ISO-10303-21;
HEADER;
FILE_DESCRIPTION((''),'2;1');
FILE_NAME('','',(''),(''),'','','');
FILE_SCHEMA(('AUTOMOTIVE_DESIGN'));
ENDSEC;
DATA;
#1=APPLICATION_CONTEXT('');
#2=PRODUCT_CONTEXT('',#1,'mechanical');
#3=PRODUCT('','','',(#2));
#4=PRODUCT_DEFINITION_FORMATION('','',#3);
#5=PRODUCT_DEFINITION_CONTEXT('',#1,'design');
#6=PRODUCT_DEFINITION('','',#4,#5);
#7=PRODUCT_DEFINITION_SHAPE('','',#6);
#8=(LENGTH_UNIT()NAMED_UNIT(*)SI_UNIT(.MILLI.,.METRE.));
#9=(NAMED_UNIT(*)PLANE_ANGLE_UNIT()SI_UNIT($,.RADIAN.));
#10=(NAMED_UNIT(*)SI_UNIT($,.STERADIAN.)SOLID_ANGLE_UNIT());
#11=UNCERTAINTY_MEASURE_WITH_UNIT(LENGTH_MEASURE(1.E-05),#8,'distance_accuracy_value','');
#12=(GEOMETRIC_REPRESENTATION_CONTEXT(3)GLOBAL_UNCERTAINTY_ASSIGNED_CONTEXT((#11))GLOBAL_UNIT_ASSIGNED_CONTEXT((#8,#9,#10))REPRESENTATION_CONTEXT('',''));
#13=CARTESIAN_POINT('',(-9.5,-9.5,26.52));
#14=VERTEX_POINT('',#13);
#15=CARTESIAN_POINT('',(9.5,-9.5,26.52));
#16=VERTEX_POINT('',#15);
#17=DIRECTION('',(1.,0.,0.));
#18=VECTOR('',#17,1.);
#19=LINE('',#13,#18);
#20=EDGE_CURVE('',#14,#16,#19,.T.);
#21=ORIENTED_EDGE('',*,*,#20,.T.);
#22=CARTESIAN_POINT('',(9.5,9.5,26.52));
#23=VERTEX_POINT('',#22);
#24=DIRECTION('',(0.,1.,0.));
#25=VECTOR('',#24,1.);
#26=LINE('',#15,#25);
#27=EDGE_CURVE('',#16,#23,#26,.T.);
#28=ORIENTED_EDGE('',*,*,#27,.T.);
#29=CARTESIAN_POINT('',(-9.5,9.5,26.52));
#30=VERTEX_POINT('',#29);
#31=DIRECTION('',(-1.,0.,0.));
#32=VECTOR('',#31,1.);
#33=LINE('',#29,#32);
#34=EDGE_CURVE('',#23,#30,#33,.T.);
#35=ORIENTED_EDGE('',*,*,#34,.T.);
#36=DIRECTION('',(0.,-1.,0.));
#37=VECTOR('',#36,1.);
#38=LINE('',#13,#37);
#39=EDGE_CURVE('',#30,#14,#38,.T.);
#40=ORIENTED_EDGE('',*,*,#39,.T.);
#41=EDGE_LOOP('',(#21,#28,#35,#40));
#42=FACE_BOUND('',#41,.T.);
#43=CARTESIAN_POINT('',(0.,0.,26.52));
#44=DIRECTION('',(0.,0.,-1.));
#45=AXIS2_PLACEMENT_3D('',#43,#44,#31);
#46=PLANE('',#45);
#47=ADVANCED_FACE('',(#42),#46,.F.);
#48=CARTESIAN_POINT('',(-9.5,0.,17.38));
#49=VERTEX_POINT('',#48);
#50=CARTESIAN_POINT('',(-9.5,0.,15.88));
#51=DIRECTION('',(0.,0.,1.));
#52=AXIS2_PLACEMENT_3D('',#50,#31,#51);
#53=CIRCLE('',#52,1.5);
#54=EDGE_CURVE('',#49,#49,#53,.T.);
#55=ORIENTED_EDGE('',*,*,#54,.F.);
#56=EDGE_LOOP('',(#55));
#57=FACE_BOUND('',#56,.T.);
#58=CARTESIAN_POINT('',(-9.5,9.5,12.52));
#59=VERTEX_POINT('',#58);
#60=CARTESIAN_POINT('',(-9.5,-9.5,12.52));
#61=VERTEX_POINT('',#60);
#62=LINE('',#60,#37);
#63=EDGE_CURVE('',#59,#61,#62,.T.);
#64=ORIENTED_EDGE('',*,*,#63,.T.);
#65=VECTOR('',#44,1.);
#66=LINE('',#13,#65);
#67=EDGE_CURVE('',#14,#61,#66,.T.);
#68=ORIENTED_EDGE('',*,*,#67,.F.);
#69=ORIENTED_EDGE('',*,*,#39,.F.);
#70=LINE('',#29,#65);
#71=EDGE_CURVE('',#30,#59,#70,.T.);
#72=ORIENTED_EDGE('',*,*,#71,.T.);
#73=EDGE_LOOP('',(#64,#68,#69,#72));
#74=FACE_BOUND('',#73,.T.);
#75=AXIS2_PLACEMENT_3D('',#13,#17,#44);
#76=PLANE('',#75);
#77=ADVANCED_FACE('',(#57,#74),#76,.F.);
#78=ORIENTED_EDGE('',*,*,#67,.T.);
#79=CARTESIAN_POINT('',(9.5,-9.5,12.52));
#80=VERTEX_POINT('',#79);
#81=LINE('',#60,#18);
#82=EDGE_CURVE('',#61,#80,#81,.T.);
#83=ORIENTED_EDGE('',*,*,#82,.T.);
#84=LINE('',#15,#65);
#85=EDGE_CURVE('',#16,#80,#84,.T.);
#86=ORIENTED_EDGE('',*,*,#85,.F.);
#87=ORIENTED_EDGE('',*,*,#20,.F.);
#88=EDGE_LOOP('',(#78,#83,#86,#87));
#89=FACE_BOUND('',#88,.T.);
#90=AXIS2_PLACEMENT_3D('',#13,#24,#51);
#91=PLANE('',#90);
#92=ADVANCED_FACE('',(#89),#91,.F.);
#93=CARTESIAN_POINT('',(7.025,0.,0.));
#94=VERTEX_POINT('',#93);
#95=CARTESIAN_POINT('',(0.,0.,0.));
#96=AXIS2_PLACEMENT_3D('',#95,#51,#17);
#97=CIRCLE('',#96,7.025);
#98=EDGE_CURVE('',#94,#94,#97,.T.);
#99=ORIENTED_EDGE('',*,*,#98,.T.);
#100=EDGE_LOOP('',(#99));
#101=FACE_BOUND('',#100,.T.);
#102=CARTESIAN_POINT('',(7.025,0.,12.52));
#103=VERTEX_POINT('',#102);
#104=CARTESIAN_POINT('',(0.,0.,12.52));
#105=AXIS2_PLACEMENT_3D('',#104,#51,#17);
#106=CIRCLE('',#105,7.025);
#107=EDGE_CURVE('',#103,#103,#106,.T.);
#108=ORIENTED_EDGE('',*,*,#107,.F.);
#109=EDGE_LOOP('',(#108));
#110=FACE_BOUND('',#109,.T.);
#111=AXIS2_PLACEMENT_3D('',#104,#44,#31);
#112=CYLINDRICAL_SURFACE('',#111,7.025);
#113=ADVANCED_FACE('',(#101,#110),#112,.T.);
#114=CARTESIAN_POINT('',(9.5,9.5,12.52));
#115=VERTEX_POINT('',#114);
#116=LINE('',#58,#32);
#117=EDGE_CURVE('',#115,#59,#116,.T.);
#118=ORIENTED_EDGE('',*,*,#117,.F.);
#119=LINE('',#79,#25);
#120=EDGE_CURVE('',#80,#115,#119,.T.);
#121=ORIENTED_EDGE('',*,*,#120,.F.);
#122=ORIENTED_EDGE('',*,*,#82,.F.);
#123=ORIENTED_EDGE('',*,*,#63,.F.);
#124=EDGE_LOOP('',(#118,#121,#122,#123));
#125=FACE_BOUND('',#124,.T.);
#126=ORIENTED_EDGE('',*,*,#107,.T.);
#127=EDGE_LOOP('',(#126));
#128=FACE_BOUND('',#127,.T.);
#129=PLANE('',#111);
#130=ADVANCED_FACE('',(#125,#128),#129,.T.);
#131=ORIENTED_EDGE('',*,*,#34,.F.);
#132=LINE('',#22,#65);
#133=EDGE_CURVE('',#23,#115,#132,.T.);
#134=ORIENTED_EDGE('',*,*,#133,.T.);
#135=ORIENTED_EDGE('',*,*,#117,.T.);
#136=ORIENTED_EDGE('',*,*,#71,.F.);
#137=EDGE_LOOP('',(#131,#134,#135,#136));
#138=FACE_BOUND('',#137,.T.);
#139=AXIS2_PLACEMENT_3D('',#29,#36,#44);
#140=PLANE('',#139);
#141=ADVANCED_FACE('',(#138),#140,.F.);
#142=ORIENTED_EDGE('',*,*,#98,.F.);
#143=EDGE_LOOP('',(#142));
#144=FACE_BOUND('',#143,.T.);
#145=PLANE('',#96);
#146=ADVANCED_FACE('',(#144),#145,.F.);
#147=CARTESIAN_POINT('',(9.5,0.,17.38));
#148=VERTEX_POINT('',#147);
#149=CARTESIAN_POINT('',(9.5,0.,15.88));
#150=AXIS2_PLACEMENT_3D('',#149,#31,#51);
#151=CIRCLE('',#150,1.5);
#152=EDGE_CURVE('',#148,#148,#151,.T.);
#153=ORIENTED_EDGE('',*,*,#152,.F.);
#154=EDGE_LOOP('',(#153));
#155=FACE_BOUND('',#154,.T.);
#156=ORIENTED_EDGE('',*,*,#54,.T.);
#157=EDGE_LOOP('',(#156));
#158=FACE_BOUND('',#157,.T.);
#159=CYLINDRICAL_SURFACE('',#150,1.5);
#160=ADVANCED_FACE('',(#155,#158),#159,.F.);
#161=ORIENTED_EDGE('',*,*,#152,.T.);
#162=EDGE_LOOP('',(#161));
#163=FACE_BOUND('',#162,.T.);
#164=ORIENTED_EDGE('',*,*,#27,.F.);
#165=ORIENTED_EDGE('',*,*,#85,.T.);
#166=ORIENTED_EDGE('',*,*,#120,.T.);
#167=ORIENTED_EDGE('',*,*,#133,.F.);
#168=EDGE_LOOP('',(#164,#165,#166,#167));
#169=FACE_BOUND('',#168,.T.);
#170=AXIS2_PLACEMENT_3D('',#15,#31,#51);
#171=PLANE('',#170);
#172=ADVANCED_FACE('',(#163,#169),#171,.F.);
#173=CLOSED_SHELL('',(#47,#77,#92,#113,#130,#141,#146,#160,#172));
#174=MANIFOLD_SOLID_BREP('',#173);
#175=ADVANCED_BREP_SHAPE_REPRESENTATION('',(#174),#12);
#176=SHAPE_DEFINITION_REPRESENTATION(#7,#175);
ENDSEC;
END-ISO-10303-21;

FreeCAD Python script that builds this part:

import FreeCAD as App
import Part
import Sketcher

doc = App.newDocument("Part")
params = doc.addObject("Spreadsheet::Sheet", "Params")
for row, (alias, value) in enumerate([
    ("sketch1_diameter", "14.05 mm"),
    ("pad1_length", "12.52 mm"),
    ("sketch2_width", "19 mm"),
    ("pad2_length", "14 mm"),
    ("sketch3_diameter", "3 mm"),
], start=1):
    params.set(f"A{row}", alias)
    params.set(f"B{row}", "=" + value)
    params.setAlias(f"B{row}", alias)

body = doc.addObject("PartDesign::Body", "Body")

# Sketch on XY plane
sketch1 = body.newObject("Sketcher::SketchObject", "Sketch")
sketch1.AttachmentSupport = (doc.getObject("XY_Plane"), [""])
sketch1.MapMode = "FlatFace"
sketch1.addGeometry(Part.Circle(App.Vector(0, 0, 0), App.Vector(0, 0, 1), 7), False)
sketch1.addConstraint(Sketcher.Constraint("Coincident", 0, 3, -1, 1))
sketch1.addConstraint(Sketcher.Constraint("Diameter", 0, 14.05))
sketch1.setExpression("Constraints[1]", "Params.sketch1_diameter")
pad1 = body.newObject("PartDesign::Pad", "Pad")
pad1.Profile = sketch1
pad1.setExpression("Length", "Params.pad1_length")

# Sketch on XY plane
sketch2 = body.newObject("Sketcher::SketchObject", "Sketch001")
sketch2.AttachmentSupport = (doc.getObject("XY_Plane"), [""])
sketch2.MapMode = "FlatFace"
sketch2.AttachmentOffset = App.Placement(App.Vector(0, 0, 12.52), App.Rotation())
sketch2.addGeometry(Part.LineSegment(App.Vector(-10, 10, 0), App.Vector(-10, -10, 0)), False)
sketch2.addGeometry(Part.LineSegment(App.Vector(-10, -10, 0), App.Vector(10, -10, 0)), False)
sketch2.addGeometry(Part.LineSegment(App.Vector(10, -10, 0), App.Vector(10, 10, 0)), False)
sketch2.addGeometry(Part.LineSegment(App.Vector(10, 10, 0), App.Vector(-10, 10, 0)), False)
sketch2.addConstraint(Sketcher.Constraint("Coincident", 0, 2, 1, 1))
sketch2.addConstraint(Sketcher.Constraint("Coincident", 1, 2, 2, 1))
sketch2.addConstraint(Sketcher.Constraint("Coincident", 2, 2, 3, 1))
sketch2.addConstraint(Sketcher.Constraint("Coincident", 3, 2, 0, 1))
sketch2.addConstraint(Sketcher.Constraint("Vertical", 0))
sketch2.addConstraint(Sketcher.Constraint("Horizontal", 1))
sketch2.addConstraint(Sketcher.Constraint("Vertical", 2))
sketch2.addConstraint(Sketcher.Constraint("Horizontal", 3))
sketch2.addConstraint(Sketcher.Constraint("Symmetric", 0, 2, 2, 2, -1, 1))
sketch2.addConstraint(Sketcher.Constraint("Equal", 3, 0))
sketch2.addConstraint(Sketcher.Constraint("DistanceX", 1, 1, 1, 2, 19.0))
sketch2.setExpression("Constraints[10]", "Params.sketch2_width")
pad2 = body.newObject("PartDesign::Pad", "Pad001")
pad2.Profile = sketch2
pad2.setExpression("Length", "Params.pad2_length")

# Sketch on YZ plane
sketch3 = body.newObject("Sketcher::SketchObject", "Sketch002")
sketch3.AttachmentSupport = (doc.getObject("YZ_Plane"), [""])
sketch3.MapMode = "FlatFace"
sketch3.AttachmentOffset = App.Placement(App.Vector(0, 0, -9.5), App.Rotation())
sketch3.addGeometry(Part.Circle(App.Vector(0, 15.9, 0), App.Vector(0, 0, 1), 1.5), False)
sketch3.addConstraint(Sketcher.Constraint("PointOnObject", 0, 3, -2))
sketch3.addConstraint(Sketcher.Constraint("Diameter", 0, 3.0))
sketch3.addConstraint(Sketcher.Constraint("DistanceY", -1, 1, 0, 3, 15.88))
sketch3.setExpression("Constraints[1]", "Params.sketch3_diameter")
pocket1 = body.newObject("PartDesign::Pocket", "Pocket")
pocket1.Profile = sketch3
pocket1.Type = "ThroughAll"
pocket1.Reversed = True

doc.recompute()
